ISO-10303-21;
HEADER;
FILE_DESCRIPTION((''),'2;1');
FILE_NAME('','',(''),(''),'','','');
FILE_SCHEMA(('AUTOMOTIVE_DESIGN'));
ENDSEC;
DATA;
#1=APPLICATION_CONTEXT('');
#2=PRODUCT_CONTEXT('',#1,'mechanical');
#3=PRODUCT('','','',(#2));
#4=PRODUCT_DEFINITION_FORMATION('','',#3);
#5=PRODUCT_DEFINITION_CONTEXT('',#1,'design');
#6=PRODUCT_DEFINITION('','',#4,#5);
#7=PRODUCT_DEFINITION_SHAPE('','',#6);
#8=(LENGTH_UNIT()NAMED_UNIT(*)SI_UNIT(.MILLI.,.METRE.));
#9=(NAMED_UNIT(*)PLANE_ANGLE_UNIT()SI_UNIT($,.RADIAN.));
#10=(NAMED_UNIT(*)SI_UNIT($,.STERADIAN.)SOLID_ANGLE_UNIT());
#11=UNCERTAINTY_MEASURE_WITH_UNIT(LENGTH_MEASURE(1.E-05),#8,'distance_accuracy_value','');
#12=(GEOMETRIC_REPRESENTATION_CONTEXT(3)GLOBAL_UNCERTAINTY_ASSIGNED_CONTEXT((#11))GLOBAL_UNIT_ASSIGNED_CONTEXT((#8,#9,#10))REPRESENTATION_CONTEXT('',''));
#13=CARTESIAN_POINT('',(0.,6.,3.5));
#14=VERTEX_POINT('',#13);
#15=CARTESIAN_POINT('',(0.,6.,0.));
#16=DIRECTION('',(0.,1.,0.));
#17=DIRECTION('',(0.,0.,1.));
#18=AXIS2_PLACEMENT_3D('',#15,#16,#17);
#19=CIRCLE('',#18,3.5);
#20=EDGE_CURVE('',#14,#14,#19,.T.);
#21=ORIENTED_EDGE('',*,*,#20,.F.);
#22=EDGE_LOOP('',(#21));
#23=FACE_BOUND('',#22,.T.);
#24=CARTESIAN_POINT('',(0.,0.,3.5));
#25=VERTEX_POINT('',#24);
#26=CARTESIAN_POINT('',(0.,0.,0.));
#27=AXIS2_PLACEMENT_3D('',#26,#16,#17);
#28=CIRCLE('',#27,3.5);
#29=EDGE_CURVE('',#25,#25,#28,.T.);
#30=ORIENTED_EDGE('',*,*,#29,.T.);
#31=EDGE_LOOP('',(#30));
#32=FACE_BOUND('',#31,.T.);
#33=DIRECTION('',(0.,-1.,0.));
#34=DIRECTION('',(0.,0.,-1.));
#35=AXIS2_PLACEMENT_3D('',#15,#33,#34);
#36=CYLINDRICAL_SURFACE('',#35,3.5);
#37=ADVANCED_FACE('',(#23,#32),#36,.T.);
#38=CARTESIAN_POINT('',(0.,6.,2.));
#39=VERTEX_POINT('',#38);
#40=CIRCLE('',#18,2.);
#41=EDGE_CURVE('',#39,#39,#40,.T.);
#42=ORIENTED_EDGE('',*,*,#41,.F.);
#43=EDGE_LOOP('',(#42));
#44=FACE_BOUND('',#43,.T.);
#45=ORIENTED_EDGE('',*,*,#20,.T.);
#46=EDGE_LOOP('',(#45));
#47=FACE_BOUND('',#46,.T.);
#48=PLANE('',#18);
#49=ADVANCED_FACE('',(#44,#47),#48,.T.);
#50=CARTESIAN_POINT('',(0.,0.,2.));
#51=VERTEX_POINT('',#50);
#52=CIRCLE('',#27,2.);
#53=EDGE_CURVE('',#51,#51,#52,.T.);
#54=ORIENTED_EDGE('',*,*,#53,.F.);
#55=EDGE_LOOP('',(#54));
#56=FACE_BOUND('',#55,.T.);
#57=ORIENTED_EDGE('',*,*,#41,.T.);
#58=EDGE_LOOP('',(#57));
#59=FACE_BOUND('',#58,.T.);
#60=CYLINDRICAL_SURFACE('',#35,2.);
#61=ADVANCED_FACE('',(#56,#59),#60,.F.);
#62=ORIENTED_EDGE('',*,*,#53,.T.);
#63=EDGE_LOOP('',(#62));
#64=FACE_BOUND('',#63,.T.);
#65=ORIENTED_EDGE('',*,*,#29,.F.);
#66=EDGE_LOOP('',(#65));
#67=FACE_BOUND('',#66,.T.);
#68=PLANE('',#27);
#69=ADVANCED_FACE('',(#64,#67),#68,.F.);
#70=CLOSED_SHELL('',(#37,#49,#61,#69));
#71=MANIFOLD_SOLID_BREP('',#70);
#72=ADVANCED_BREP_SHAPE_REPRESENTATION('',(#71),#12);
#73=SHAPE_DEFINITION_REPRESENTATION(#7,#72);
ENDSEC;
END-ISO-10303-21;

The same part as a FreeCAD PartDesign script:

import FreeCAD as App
import Part
import Sketcher
Q = App.Units.Quantity

doc = App.newDocument("Part")
params = doc.addObject("Spreadsheet::Sheet", "Params")
for row, (alias, value) in enumerate([
    ("sketch1_diameter", "7 mm"),
    ("sketch1_diameter2", "4 mm"),
    ("pad1_length", "6 mm"),
], start=1):
    params.set(f"A{row}", alias)
    params.set(f"B{row}", "=" + value)
    params.setAlias(f"B{row}", alias)

body = doc.addObject("PartDesign::Body", "Body")

sketch1 = body.newObject("Sketcher::SketchObject", "Sketch")
sketch1.AttachmentSupport = (doc.getObject("XZ_Plane"), [""])
sketch1.MapMode = "FlatFace"
sketch1.addGeometry([
    Part.Circle(App.Vector(0, 0, 0), App.Vector(0, 0, 1), 3.5),
    Part.Circle(App.Vector(0, 0, 0), App.Vector(0, 0, 1), 2),
], False)
sketch1.addConstraint([
    Sketcher.Constraint("Coincident", 0, 3, -1, 1),
    Sketcher.Constraint("Coincident", 1, 3, -1, 1),
    Sketcher.Constraint("Diameter", 0, Q("7 mm")),
    Sketcher.Constraint("Diameter", 1, Q("4 mm")),
])
sketch1.setExpression("Constraints[2]", "Params.sketch1_diameter")
sketch1.setExpression("Constraints[3]", "Params.sketch1_diameter2")
pad1 = body.newObject("PartDesign::Pad", "Pad")
pad1.Profile = sketch1
pad1.setExpression("Length", "Params.pad1_length")
pad1.Reversed = True

doc.recompute()
